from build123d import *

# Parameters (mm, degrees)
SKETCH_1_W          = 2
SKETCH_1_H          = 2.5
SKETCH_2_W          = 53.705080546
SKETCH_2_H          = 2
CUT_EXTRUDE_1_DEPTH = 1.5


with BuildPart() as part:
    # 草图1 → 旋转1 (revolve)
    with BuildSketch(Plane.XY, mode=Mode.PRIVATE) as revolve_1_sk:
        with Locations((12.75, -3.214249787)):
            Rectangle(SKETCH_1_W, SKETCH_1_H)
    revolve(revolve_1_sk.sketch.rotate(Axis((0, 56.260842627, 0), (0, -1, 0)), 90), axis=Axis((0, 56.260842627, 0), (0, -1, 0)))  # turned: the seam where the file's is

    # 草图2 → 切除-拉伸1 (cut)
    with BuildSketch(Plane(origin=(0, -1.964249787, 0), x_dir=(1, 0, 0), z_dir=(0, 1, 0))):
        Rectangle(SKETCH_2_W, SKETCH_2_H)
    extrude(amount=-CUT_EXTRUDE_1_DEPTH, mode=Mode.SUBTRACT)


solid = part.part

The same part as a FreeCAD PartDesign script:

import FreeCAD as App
import Part
import Sketcher
from FreeCAD import Vector

doc = App.newDocument("Part")
params = doc.addObject("Spreadsheet::Sheet", "Params")
for row, (alias, value) in enumerate([
    ("sketch1_width", "2 mm"),
    ("sketch1_height", "2.5 mm"),
    ("revolution_angle", "360 deg"),
    ("sketch2_height", "2 mm"),
    ("pocket1_length", "1.5 mm"),
], start=1):
    params.set(f"A{row}", alias)
    params.set(f"B{row}", "=" + value)
    params.setAlias(f"B{row}", alias)

body = doc.addObject("PartDesign::Body", "Body")

sketch1 = body.newObject("Sketcher::SketchObject", "Sketch")
sketch1.AttachmentSupport = (doc.getObject("XY_Plane"), [""])
sketch1.MapMode = "FlatFace"
sketch1.addGeometry([
    Part.LineSegment(Vector(11.8, -2, 0), Vector(11.8, -4.5, 0)),
    Part.LineSegment(Vector(11.8, -4.5, 0), Vector(13.8, -4.5, 0)),
    Part.LineSegment(Vector(13.8, -4.5, 0), Vector(13.8, -2, 0)),
    Part.LineSegment(Vector(13.8, -2, 0), Vector(11.8, -2, 0)),
], False)
sketch1.addConstraint([
    Sketcher.Constraint("Coincident", 0, 2, 1, 1),
    Sketcher.Constraint("Coincident", 1, 2, 2, 1),
    Sketcher.Constraint("Coincident", 2, 2, 3, 1),
    Sketcher.Constraint("Coincident", 3, 2, 0, 1),
    Sketcher.Constraint("Vertical", 0),
    Sketcher.Constraint("Horizontal", 1),
    Sketcher.Constraint("Vertical", 2),
    Sketcher.Constraint("Horizontal", 3),
    Sketcher.Constraint("DistanceX", 1, 1, 1, 2, 2.0),
    Sketcher.Constraint("DistanceY", 0, 2, 0, 1, 2.5),
    Sketcher.Constraint("DistanceX", -1, 1, 0, 2, 11.75),
    Sketcher.Constraint("DistanceY", 0, 2, -1, 1, 4.46425),
])
sketch1.setExpression("Constraints[8]", "Params.sketch1_width")
sketch1.setExpression("Constraints[9]", "Params.sketch1_height")
revolution = body.newObject("PartDesign::Revolution", "Revolution")
revolution.Profile = sketch1
revolution.ReferenceAxis = (sketch1, ["V_Axis"])
revolution.setExpression("Angle", "Params.revolution_angle")

sketch2 = body.newObject("Sketcher::SketchObject", "Sketch001")
sketch2.AttachmentSupport = (doc.getObject("XZ_Plane"), [""])
sketch2.MapMode = "FlatFace"
sketch2.AttachmentOffset = App.Placement(Vector(0, 0, 1.96425), App.Rotation())
sketch2.addGeometry([
    Part.LineSegment(Vector(-26.9, -1, 0), Vector(-26.9, 1, 0)),
    Part.LineSegment(Vector(-26.9, 1, 0), Vector(26.9, 1, 0)),
    Part.LineSegment(Vector(26.9, 1, 0), Vector(26.9, -1, 0)),
    Part.LineSegment(Vector(26.9, -1, 0), Vector(-26.9, -1, 0)),
], False)
sketch2.addConstraint([
    Sketcher.Constraint("Coincident", 0, 2, 1, 1),
    Sketcher.Constraint("Coincident", 1, 2, 2, 1),
    Sketcher.Constraint("Coincident", 2, 2, 3, 1),
    Sketcher.Constraint("Coincident", 3, 2, 0, 1),
    Sketcher.Constraint("Vertical", 0),
    Sketcher.Constraint("Horizontal", 1),
    Sketcher.Constraint("Vertical", 2),
    Sketcher.Constraint("Horizontal", 3),
    Sketcher.Constraint("Symmetric", 0, 2, 2, 2, -1, 1),
    Sketcher.Constraint("DistanceY", 0, 1, 0, 2, 2.0),
    Sketcher.Constraint("DistanceX", 1, 1, 1, 2, 53.705081),
])
sketch2.setExpression("Constraints[9]", "Params.sketch2_height")
pocket1 = body.newObject("PartDesign::Pocket", "Pocket")
pocket1.Profile = sketch2
pocket1.setExpression("Length", "Params.pocket1_length")
pocket1.Reversed = True

doc.recompute()
